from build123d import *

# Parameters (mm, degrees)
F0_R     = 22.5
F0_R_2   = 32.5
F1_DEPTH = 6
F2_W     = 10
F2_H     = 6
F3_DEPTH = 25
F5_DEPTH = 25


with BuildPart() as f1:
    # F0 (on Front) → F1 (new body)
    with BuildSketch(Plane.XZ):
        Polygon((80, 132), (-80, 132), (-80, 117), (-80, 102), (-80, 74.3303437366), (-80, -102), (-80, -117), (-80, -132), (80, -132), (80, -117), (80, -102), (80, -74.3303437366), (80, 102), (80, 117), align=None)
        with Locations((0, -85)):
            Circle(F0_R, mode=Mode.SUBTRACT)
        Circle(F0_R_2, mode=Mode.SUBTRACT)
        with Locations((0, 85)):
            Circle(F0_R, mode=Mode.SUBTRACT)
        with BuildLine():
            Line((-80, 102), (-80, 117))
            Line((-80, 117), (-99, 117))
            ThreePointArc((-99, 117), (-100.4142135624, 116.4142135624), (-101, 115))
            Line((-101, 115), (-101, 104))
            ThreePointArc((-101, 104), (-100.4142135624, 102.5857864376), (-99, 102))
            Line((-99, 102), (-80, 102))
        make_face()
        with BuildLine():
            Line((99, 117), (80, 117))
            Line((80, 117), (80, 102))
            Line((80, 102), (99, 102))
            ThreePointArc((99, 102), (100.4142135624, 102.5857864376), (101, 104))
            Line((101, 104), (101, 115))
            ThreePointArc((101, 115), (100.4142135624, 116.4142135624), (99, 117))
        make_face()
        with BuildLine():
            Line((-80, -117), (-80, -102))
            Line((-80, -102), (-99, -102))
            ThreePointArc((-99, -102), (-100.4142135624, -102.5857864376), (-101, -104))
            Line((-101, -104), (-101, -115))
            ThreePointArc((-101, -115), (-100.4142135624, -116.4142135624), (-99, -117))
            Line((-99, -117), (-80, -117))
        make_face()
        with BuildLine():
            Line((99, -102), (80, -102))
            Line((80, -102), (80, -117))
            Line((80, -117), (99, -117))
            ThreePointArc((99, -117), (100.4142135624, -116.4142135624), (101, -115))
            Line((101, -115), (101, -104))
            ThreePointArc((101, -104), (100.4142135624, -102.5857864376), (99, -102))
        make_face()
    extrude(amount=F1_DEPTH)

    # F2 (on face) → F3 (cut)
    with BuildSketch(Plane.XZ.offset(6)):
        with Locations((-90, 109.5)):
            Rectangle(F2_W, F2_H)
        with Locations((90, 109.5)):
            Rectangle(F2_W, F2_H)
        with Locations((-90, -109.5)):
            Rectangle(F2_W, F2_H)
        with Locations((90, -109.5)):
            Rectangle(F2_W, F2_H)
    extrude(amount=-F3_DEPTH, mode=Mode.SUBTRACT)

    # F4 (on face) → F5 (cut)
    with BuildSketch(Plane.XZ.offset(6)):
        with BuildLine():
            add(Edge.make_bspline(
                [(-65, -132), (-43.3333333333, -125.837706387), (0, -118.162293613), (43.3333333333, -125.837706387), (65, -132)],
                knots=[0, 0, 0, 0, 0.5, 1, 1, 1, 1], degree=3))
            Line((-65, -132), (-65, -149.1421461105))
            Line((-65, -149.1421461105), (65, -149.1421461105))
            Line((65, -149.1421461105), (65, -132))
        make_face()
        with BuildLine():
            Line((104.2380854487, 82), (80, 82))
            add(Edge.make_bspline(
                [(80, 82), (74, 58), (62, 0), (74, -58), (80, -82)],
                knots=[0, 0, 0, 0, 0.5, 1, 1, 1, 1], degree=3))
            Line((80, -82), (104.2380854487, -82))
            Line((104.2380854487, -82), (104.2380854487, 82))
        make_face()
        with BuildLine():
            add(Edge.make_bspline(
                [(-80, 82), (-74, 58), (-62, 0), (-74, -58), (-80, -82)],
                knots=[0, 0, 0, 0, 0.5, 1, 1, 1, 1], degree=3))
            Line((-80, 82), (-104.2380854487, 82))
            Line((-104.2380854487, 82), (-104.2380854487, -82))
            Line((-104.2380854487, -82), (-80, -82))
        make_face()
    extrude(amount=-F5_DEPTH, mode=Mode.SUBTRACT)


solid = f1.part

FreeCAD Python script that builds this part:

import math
import FreeCAD as App
import Part
import Sketcher
from FreeCAD import Vector

doc = App.newDocument("Part")
body = doc.addObject("PartDesign::Body", "Body")

# Sketch on XZ plane
sketch1 = body.newObject("Sketcher::SketchObject", "Sketch")
sketch1.AttachmentSupport = (doc.getObject("XZ_Plane"), [""])
sketch1.MapMode = "FlatFace"
sketch1.addGeometry([
    Part.LineSegment(Vector(80, 132, 0), Vector(-80, 132, 0)),  # 0
    Part.LineSegment(Vector(-80, 132, 0), Vector(-80, 117, 0)),  # 1
    Part.LineSegment(Vector(-80, 117, 0), Vector(-99, 117, 0)),  # 2
    Part.ArcOfCircle(Part.Circle(Vector(-99, 115, 0), Vector(0, 0, 1), 2), math.radians(90), math.radians(180)),  # 3
    Part.LineSegment(Vector(-101, 115, 0), Vector(-101, 104, 0)),  # 4
    Part.ArcOfCircle(Part.Circle(Vector(-99, 104, 0), Vector(0, 0, 1), 2), math.radians(180), math.radians(270)),  # 5
    Part.LineSegment(Vector(-99, 102, 0), Vector(-80, 102, 0)),  # 6
    Part.LineSegment(Vector(-80, 102, 0), Vector(-80, -102, 0)),  # 7
    Part.LineSegment(Vector(-80, -102, 0), Vector(-99, -102, 0)),  # 8
    Part.ArcOfCircle(Part.Circle(Vector(-99, -104, 0), Vector(0, 0, 1), 2), math.radians(90), math.radians(180)),  # 9
    Part.LineSegment(Vector(-101, -104, 0), Vector(-101, -115, 0)),  # 10
    Part.ArcOfCircle(Part.Circle(Vector(-99, -115, 0), Vector(0, 0, 1), 2), math.radians(180), math.radians(270)),  # 11
    Part.LineSegment(Vector(-99, -117, 0), Vector(-80, -117, 0)),  # 12
    Part.LineSegment(Vector(-80, -117, 0), Vector(-80, -132, 0)),  # 13
    Part.LineSegment(Vector(-80, -132, 0), Vector(80, -132, 0)),  # 14
    Part.LineSegment(Vector(80, -132, 0), Vector(80, -117, 0)),  # 15
    Part.LineSegment(Vector(80, -117, 0), Vector(99, -117, 0)),  # 16
    Part.ArcOfCircle(Part.Circle(Vector(99, -115, 0), Vector(0, 0, 1), 2), math.radians(-90), math.radians(0)),  # 17
    Part.LineSegment(Vector(101, -115, 0), Vector(101, -104, 0)),  # 18
    Part.ArcOfCircle(Part.Circle(Vector(99, -104, 0), Vector(0, 0, 1), 2), math.radians(0), math.radians(90)),  # 19
    Part.LineSegment(Vector(99, -102, 0), Vector(80, -102, 0)),  # 20
    Part.LineSegment(Vector(80, -102, 0), Vector(80, 102, 0)),  # 21
    Part.LineSegment(Vector(80, 102, 0), Vector(99, 102, 0)),  # 22
    Part.ArcOfCircle(Part.Circle(Vector(99, 104, 0), Vector(0, 0, 1), 2), math.radians(-90), math.radians(0)),  # 23
    Part.LineSegment(Vector(101, 104, 0), Vector(101, 115, 0)),  # 24
    Part.ArcOfCircle(Part.Circle(Vector(99, 115, 0), Vector(0, 0, 1), 2), math.radians(0), math.radians(90)),  # 25
    Part.LineSegment(Vector(99, 117, 0), Vector(80, 117, 0)),  # 26
    Part.LineSegment(Vector(80, 117, 0), Vector(80, 132, 0)),  # 27
    Part.Circle(Vector(0, -85, 0), Vector(0, 0, 1), 22.5),  # 28
    Part.Circle(Vector(0, 0, 0), Vector(0, 0, 1), 32.5),  # 29
    Part.Circle(Vector(0, 85, 0), Vector(0, 0, 1), 22.5),  # 30
], False)
sketch1.addConstraint([
    Sketcher.Constraint("Coincident", 0, 2, 1, 1),
    Sketcher.Constraint("Coincident", 1, 2, 2, 1),
    Sketcher.Constraint("Tangent", 2, 2, 3, 1),
    Sketcher.Constraint("Tangent", 3, 2, 4, 1),
    Sketcher.Constraint("Tangent", 4, 2, 5, 1),
    Sketcher.Constraint("Tangent", 5, 2, 6, 1),
    Sketcher.Constraint("Coincident", 6, 2, 7, 1),
    Sketcher.Constraint("Coincident", 7, 2, 8, 1),
    Sketcher.Constraint("Tangent", 8, 2, 9, 1),
    Sketcher.Constraint("Tangent", 9, 2, 10, 1),
    Sketcher.Constraint("Tangent", 10, 2, 11, 1),
    Sketcher.Constraint("Tangent", 11, 2, 12, 1),
    Sketcher.Constraint("Coincident", 12, 2, 13, 1),
    Sketcher.Constraint("Coincident", 13, 2, 14, 1),
    Sketcher.Constraint("Coincident", 14, 2, 15, 1),
    Sketcher.Constraint("Coincident", 15, 2, 16, 1),
    Sketcher.Constraint("Tangent", 16, 2, 17, 1),
    Sketcher.Constraint("Tangent", 17, 2, 18, 1),
    Sketcher.Constraint("Tangent", 18, 2, 19, 1),
    Sketcher.Constraint("Tangent", 19, 2, 20, 1),
    Sketcher.Constraint("Coincident", 20, 2, 21, 1),
    Sketcher.Constraint("Coincident", 21, 2, 22, 1),
    Sketcher.Constraint("Tangent", 22, 2, 23, 1),
    Sketcher.Constraint("Tangent", 23, 2, 24, 1),
    Sketcher.Constraint("Tangent", 24, 2, 25, 1),
    Sketcher.Constraint("Tangent", 25, 2, 26, 1),
    Sketcher.Constraint("Coincident", 26, 2, 27, 1),
    Sketcher.Constraint("Coincident", 27, 2, 0, 1),
    Sketcher.Constraint("Horizontal", 0),
    Sketcher.Constraint("Vertical", 1),
    Sketcher.Constraint("Horizontal", 2),
    Sketcher.Constraint("Vertical", 4),
    Sketcher.Constraint("Horizontal", 6),
    Sketcher.Constraint("Vertical", 7),
    Sketcher.Constraint("Horizontal", 8),
    Sketcher.Constraint("Vertical", 10),
    Sketcher.Constraint("Horizontal", 12),
    Sketcher.Constraint("Vertical", 13),
    Sketcher.Constraint("Horizontal", 14),
    Sketcher.Constraint("Vertical", 15),
    Sketcher.Constraint("Horizontal", 16),
    Sketcher.Constraint("Vertical", 18),
    Sketcher.Constraint("Horizontal", 20),
    Sketcher.Constraint("Vertical", 21),
    Sketcher.Constraint("Horizontal", 22),
    Sketcher.Constraint("Vertical", 24),
    Sketcher.Constraint("Horizontal", 26),
    Sketcher.Constraint("Vertical", 27),
    Sketcher.Constraint("Coincident", 29, 3, -1, 1),
    Sketcher.Constraint("Equal", 3, 5),
    Sketcher.Constraint("Equal", 5, 9),
    Sketcher.Constraint("Equal", 9, 11),
    Sketcher.Constraint("Equal", 11, 17),
    Sketcher.Constraint("Equal", 17, 19),
    Sketcher.Constraint("Equal", 19, 23),
    Sketcher.Constraint("Equal", 23, 25),
    Sketcher.Constraint("Equal", 28, 30),
    Sketcher.Constraint("Symmetric", 3, 3, 17, 3, -1, 1),
    Sketcher.Constraint("Symmetric", 9, 3, 23, 3, -1, 1),
    Sketcher.Constraint("Symmetric", 28, 3, 30, 3, -1, 1),
    Sketcher.Constraint("Symmetric", 0, 2, 14, 2, -1, 1),
    Sketcher.Constraint("Symmetric", 6, 2, 20, 2, -1, 1),
    Sketcher.Constraint("Symmetric", 12, 2, 26, 2, -1, 1),
    Sketcher.Constraint("Symmetric", 11, 3, 17, 3, -2),
    Sketcher.Constraint("PointOnObject", 28, 3, -2),
    Sketcher.Constraint("Horizontal", 9, 3, 19, 3),
    Sketcher.Constraint("Vertical", 1, 2, 6, 2),
    Sketcher.Constraint("Vertical", 7, 2, 12, 2),
    Sketcher.Constraint("Diameter", 28, 45.0),
    Sketcher.Constraint("Diameter", 29, 65.0),
    Sketcher.Constraint("Radius", 3, 2.0),
    Sketcher.Constraint("DistanceX", 0, 2, 0, 1, 160.0),
    Sketcher.Constraint("DistanceX", 2, 2, 2, 1, 19.0),
    Sketcher.Constraint("DistanceY", 1, 2, 1, 1, 15.0),
    Sketcher.Constraint("DistanceY", 4, 2, 4, 1, 11.0),
    Sketcher.Constraint("DistanceY", 7, 2, 7, 1, 204.0),
    Sketcher.Constraint("DistanceY", 28, 3, -1, 1, 85.0),
])
pad1 = body.newObject("PartDesign::Pad", "Pad")
pad1.Profile = sketch1
pad1.Length = 6

# Sketch on XZ plane
sketch2 = body.newObject("Sketcher::SketchObject", "Sketch001")
sketch2.AttachmentSupport = (doc.getObject("XZ_Plane"), [""])
sketch2.MapMode = "FlatFace"
sketch2.AttachmentOffset = App.Placement(Vector(0, 0, 6), App.Rotation())
sketch2.addGeometry([
    Part.LineSegment(Vector(-95, 112, 0), Vector(-95, 106, 0)),  # 0
    Part.LineSegment(Vector(-95, 106, 0), Vector(-85, 106, 0)),  # 1
    Part.LineSegment(Vector(-85, 106, 0), Vector(-85, 112, 0)),  # 2
    Part.LineSegment(Vector(-85, 112, 0), Vector(-95, 112, 0)),  # 3
    Part.LineSegment(Vector(85, 112, 0), Vector(85, 106, 0)),  # 4
    Part.LineSegment(Vector(85, 106, 0), Vector(95, 106, 0)),  # 5
    Part.LineSegment(Vector(95, 106, 0), Vector(95, 112, 0)),  # 6
    Part.LineSegment(Vector(95, 112, 0), Vector(85, 112, 0)),  # 7
    Part.LineSegment(Vector(-95, -106, 0), Vector(-95, -112, 0)),  # 8
    Part.LineSegment(Vector(-95, -112, 0), Vector(-85, -112, 0)),  # 9
    Part.LineSegment(Vector(-85, -112, 0), Vector(-85, -106, 0)),  # 10
    Part.LineSegment(Vector(-85, -106, 0), Vector(-95, -106, 0)),  # 11
    Part.LineSegment(Vector(85, -106, 0), Vector(85, -112, 0)),  # 12
    Part.LineSegment(Vector(85, -112, 0), Vector(95, -112, 0)),  # 13
    Part.LineSegment(Vector(95, -112, 0), Vector(95, -106, 0)),  # 14
    Part.LineSegment(Vector(95, -106, 0), Vector(85, -106, 0)),  # 15
], False)
sketch2.addConstraint([
    Sketcher.Constraint("Coincident", 0, 2, 1, 1),
    Sketcher.Constraint("Coincident", 1, 2, 2, 1),
    Sketcher.Constraint("Coincident", 2, 2, 3, 1),
    Sketcher.Constraint("Coincident", 3, 2, 0, 1),
    Sketcher.Constraint("Coincident", 4, 2, 5, 1),
    Sketcher.Constraint("Coincident", 5, 2, 6, 1),
    Sketcher.Constraint("Coincident", 6, 2, 7, 1),
    Sketcher.Constraint("Coincident", 7, 2, 4, 1),
    Sketcher.Constraint("Coincident", 8, 2, 9, 1),
    Sketcher.Constraint("Coincident", 9, 2, 10, 1),
    Sketcher.Constraint("Coincident", 10, 2, 11, 1),
    Sketcher.Constraint("Coincident", 11, 2, 8, 1),
    Sketcher.Constraint("Coincident", 12, 2, 13, 1),
    Sketcher.Constraint("Coincident", 13, 2, 14, 1),
    Sketcher.Constraint("Coincident", 14, 2, 15, 1),
    Sketcher.Constraint("Coincident", 15, 2, 12, 1),
    Sketcher.Constraint("Vertical", 0),
    Sketcher.Constraint("Horizontal", 1),
    Sketcher.Constraint("Vertical", 2),
    Sketcher.Constraint("Horizontal", 3),
    Sketcher.Constraint("Vertical", 4),
    Sketcher.Constraint("Horizontal", 5),
    Sketcher.Constraint("Vertical", 6),
    Sketcher.Constraint("Horizontal", 7),
    Sketcher.Constraint("Vertical", 8),
    Sketcher.Constraint("Horizontal", 9),
    Sketcher.Constraint("Vertical", 10),
    Sketcher.Constraint("Horizontal", 11),
    Sketcher.Constraint("Vertical", 12),
    Sketcher.Constraint("Horizontal", 13),
    Sketcher.Constraint("Vertical", 14),
    Sketcher.Constraint("Horizontal", 15),
    Sketcher.Constraint("Symmetric", 6, 2, 8, 2, -1, 1),
    Sketcher.Constraint("Symmetric", 4, 2, 10, 2, -1, 1),
    Sketcher.Constraint("Symmetric", 2, 2, 12, 2, -1, 1),
    Sketcher.Constraint("Symmetric", 0, 2, 14, 2, -1, 1),
    Sketcher.Constraint("Symmetric", 1, 2, 4, 2, -2),
    Sketcher.Constraint("Symmetric", 3, 2, 6, 2, -2),
    Sketcher.Constraint("DistanceX", 1, 1, 1, 2, 10.0),
    Sketcher.Constraint("DistanceY", 0, 2, 0, 1, 6.0),
    Sketcher.Constraint("DistanceX", 0, 2, -1, 1, 95.0),
    Sketcher.Constraint("DistanceY", 8, 2, 0, 2, 219.0),
])
pocket1 = body.newObject("PartDesign::Pocket", "Pocket")
pocket1.Profile = sketch2
pocket1.Length = 25

# Sketch on XZ plane
sketch3 = body.newObject("Sketcher::SketchObject", "Sketch002")
sketch3.AttachmentSupport = (doc.getObject("XZ_Plane"), [""])
sketch3.MapMode = "FlatFace"
sketch3.AttachmentOffset = App.Placement(Vector(0, 0, 6), App.Rotation())
sketch3.addGeometry([
    Part.BSplineCurve([Vector(-65, -132, 0), Vector(-43.333333, -125.837706, 0), Vector(0, -118.162294, 0), Vector(43.333333, -125.837706, 0), Vector(65, -132, 0)], [4, 1, 4], [0, 0.5, 1], False, 3, [1, 1, 1, 1, 1], False),  # 0
    Part.LineSegment(Vector(-65, -132, 0), Vector(-65, -149.142146, 0)),  # 1
    Part.LineSegment(Vector(-65, -149.142146, 0), Vector(65, -149.142146, 0)),  # 2
    Part.LineSegment(Vector(65, -149.142146, 0), Vector(65, -132, 0)),  # 3
    Part.LineSegment(Vector(104.238085, 82, 0), Vector(80, 82, 0)),  # 4
    Part.BSplineCurve([Vector(80, 82, 0), Vector(74, 58, 0), Vector(62, 0, 0), Vector(74, -58, 0), Vector(80, -82, 0)], [4, 1, 4], [0, 0.5, 1], False, 3, [1, 1, 1, 1, 1], False),  # 5
    Part.LineSegment(Vector(80, -82, 0), Vector(104.238085, -82, 0)),  # 6
    Part.LineSegment(Vector(104.238085, -82, 0), Vector(104.238085, 82, 0)),  # 7
    Part.BSplineCurve([Vector(-80, 82, 0), Vector(-74, 58, 0), Vector(-62, 0, 0), Vector(-74, -58, 0), Vector(-80, -82, 0)], [4, 1, 4], [0, 0.5, 1], False, 3, [1, 1, 1, 1, 1], False),  # 8
    Part.LineSegment(Vector(-80, 82, 0), Vector(-104.238085, 82, 0)),  # 9
    Part.LineSegment(Vector(-104.238085, 82, 0), Vector(-104.238085, -82, 0)),  # 10
    Part.LineSegment(Vector(-104.238085, -82, 0), Vector(-80, -82, 0)),  # 11
], False)
sketch3.addConstraint([
    Sketcher.Constraint("Block", 0),
    Sketcher.Constraint("Block", 5),
    Sketcher.Constraint("Block", 8),
    Sketcher.Constraint("Coincident", 0, 1, 1, 1),
    Sketcher.Constraint("Coincident", 1, 2, 2, 1),
    Sketcher.Constraint("Coincident", 2, 2, 3, 1),
    Sketcher.Constraint("Coincident", 3, 2, 0, 2),
    Sketcher.Constraint("Coincident", 4, 2, 5, 1),
    Sketcher.Constraint("Coincident", 5, 2, 6, 1),
    Sketcher.Constraint("Coincident", 6, 2, 7, 1),
    Sketcher.Constraint("Coincident", 7, 2, 4, 1),
    Sketcher.Constraint("Coincident", 8, 1, 9, 1),
    Sketcher.Constraint("Coincident", 9, 2, 10, 1),
    Sketcher.Constraint("Coincident", 10, 2, 11, 1),
    Sketcher.Constraint("Coincident", 11, 2, 8, 2),
    Sketcher.Constraint("Vertical", 1),
    Sketcher.Constraint("Horizontal", 2),
    Sketcher.Constraint("Vertical", 3),
    Sketcher.Constraint("Horizontal", 4),
    Sketcher.Constraint("Horizontal", 6),
    Sketcher.Constraint("Vertical", 7),
    Sketcher.Constraint("Horizontal", 9),
    Sketcher.Constraint("Vertical", 10),
    Sketcher.Constraint("Horizontal", 11),
    Sketcher.Constraint("Equal", 6, 9),
    Sketcher.Constraint("DistanceX", 4, 2, 4, 1, 24.238085),
    Sketcher.Constraint("DistanceY", 1, 2, 1, 1, 17.142146),
])
pocket2 = body.newObject("PartDesign::Pocket", "Pocket001")
pocket2.Profile = sketch3
pocket2.Length = 25

doc.recompute()
